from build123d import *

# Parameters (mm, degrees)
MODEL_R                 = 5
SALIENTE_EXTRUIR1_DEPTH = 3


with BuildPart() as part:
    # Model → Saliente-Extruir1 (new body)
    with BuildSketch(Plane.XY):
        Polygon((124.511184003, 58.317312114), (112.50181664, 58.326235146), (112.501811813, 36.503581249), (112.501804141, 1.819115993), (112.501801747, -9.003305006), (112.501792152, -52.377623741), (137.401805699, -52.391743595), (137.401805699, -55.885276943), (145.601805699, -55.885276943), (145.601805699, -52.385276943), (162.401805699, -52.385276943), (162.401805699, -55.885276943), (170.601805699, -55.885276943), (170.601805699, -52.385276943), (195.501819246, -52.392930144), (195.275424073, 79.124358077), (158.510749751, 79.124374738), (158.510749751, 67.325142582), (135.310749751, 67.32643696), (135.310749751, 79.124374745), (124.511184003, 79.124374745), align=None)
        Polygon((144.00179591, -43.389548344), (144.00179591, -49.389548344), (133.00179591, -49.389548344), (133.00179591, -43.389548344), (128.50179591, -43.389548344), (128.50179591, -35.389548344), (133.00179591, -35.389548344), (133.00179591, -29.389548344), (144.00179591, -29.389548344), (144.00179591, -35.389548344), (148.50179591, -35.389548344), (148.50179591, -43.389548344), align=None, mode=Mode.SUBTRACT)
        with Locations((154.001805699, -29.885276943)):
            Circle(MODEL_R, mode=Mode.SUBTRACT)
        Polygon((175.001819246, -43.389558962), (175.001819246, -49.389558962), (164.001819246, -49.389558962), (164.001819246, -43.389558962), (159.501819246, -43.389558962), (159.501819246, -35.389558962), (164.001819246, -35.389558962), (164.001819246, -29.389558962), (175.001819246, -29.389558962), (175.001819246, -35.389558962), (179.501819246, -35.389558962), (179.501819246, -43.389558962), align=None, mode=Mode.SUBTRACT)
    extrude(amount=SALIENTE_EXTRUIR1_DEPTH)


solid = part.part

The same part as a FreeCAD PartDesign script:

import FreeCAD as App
import Part
import Sketcher
from FreeCAD import Vector
Q = App.Units.Quantity

doc = App.newDocument("Part")
body = doc.addObject("PartDesign::Body", "Body")

# Sketch on XY plane
sketch1 = body.newObject("Sketcher::SketchObject", "Sketch")
sketch1.AttachmentSupport = (doc.getObject("XY_Plane"), [""])
sketch1.MapMode = "FlatFace"
sketch1.addGeometry([
    Part.LineSegment(Vector(124.5, 58.3, 0), Vector(112.5, 58.3, 0)),  # 0
    Part.LineSegment(Vector(112.5, 58.3, 0), Vector(112.5, 36.5, 0)),  # 1
    Part.LineSegment(Vector(112.5, 36.5, 0), Vector(112.5, 1.8, 0)),  # 2
    Part.LineSegment(Vector(112.5, 1.8, 0), Vector(112.5, -9, 0)),  # 3
    Part.LineSegment(Vector(112.5, -9, 0), Vector(112.5, -52.4, 0)),  # 4
    Part.LineSegment(Vector(112.5, -52.4, 0), Vector(137.4, -52.4, 0)),  # 5
    Part.LineSegment(Vector(137.4, -52.4, 0), Vector(137.4, -55.9, 0)),  # 6
    Part.LineSegment(Vector(137.4, -55.9, 0), Vector(145.6, -55.9, 0)),  # 7
    Part.LineSegment(Vector(145.6, -55.9, 0), Vector(145.6, -52.4, 0)),  # 8
    Part.LineSegment(Vector(145.6, -52.4, 0), Vector(162.4, -52.4, 0)),  # 9
    Part.LineSegment(Vector(162.4, -52.4, 0), Vector(162.4, -55.9, 0)),  # 10
    Part.LineSegment(Vector(162.4, -55.9, 0), Vector(170.6, -55.9, 0)),  # 11
    Part.LineSegment(Vector(170.6, -55.9, 0), Vector(170.6, -52.4, 0)),  # 12
    Part.LineSegment(Vector(170.6, -52.4, 0), Vector(195.5, -52.4, 0)),  # 13
    Part.LineSegment(Vector(195.5, -52.4, 0), Vector(195.3, 79.1, 0)),  # 14
    Part.LineSegment(Vector(195.3, 79.1, 0), Vector(158.5, 79.1, 0)),  # 15
    Part.LineSegment(Vector(158.5, 79.1, 0), Vector(158.5, 67.3, 0)),  # 16
    Part.LineSegment(Vector(158.5, 67.3, 0), Vector(135.3, 67.3, 0)),  # 17
    Part.LineSegment(Vector(135.3, 67.3, 0), Vector(135.3, 79.1, 0)),  # 18
    Part.LineSegment(Vector(135.3, 79.1, 0), Vector(124.5, 79.1, 0)),  # 19
    Part.LineSegment(Vector(124.5, 79.1, 0), Vector(124.5, 58.3, 0)),  # 20
    Part.LineSegment(Vector(148.5, -43.4, 0), Vector(144, -43.4, 0)),  # 21
    Part.LineSegment(Vector(144, -43.4, 0), Vector(144, -49.4, 0)),  # 22
    Part.LineSegment(Vector(144, -49.4, 0), Vector(133, -49.4, 0)),  # 23
    Part.LineSegment(Vector(133, -49.4, 0), Vector(133, -43.4, 0)),  # 24
    Part.LineSegment(Vector(133, -43.4, 0), Vector(128.5, -43.4, 0)),  # 25
    Part.LineSegment(Vector(128.5, -43.4, 0), Vector(128.5, -35.4, 0)),  # 26
    Part.LineSegment(Vector(128.5, -35.4, 0), Vector(133, -35.4, 0)),  # 27
    Part.LineSegment(Vector(133, -35.4, 0), Vector(133, -29.4, 0)),  # 28
    Part.LineSegment(Vector(133, -29.4, 0), Vector(144, -29.4, 0)),  # 29
    Part.LineSegment(Vector(144, -29.4, 0), Vector(144, -35.4, 0)),  # 30
    Part.LineSegment(Vector(144, -35.4, 0), Vector(148.5, -35.4, 0)),  # 31
    Part.LineSegment(Vector(148.5, -35.4, 0), Vector(148.5, -43.4, 0)),  # 32
    Part.LineSegment(Vector(179.5, -43.4, 0), Vector(175, -43.4, 0)),  # 33
    Part.LineSegment(Vector(175, -43.4, 0), Vector(175, -49.4, 0)),  # 34
    Part.LineSegment(Vector(175, -49.4, 0), Vector(164, -49.4, 0)),  # 35
    Part.LineSegment(Vector(164, -49.4, 0), Vector(164, -43.4, 0)),  # 36
    Part.LineSegment(Vector(164, -43.4, 0), Vector(159.5, -43.4, 0)),  # 37
    Part.LineSegment(Vector(159.5, -43.4, 0), Vector(159.5, -35.4, 0)),  # 38
    Part.LineSegment(Vector(159.5, -35.4, 0), Vector(164, -35.4, 0)),  # 39
    Part.LineSegment(Vector(164, -35.4, 0), Vector(164, -29.4, 0)),  # 40
    Part.LineSegment(Vector(164, -29.4, 0), Vector(175, -29.4, 0)),  # 41
    Part.LineSegment(Vector(175, -29.4, 0), Vector(175, -35.4, 0)),  # 42
    Part.LineSegment(Vector(175, -35.4, 0), Vector(179.5, -35.4, 0)),  # 43
    Part.LineSegment(Vector(179.5, -35.4, 0), Vector(179.5, -43.4, 0)),  # 44
    Part.Circle(Vector(154, -29.9, 0), Vector(0, 0, 1), 5),  # 45
], False)
sketch1.addConstraint([
    Sketcher.Constraint("Coincident", 0, 2, 1, 1),
    Sketcher.Constraint("Coincident", 1, 2, 2, 1),
    Sketcher.Constraint("Coincident", 2, 2, 3, 1),
    Sketcher.Constraint("Coincident", 3, 2, 4, 1),
    Sketcher.Constraint("Coincident", 4, 2, 5, 1),
    Sketcher.Constraint("Coincident", 5, 2, 6, 1),
    Sketcher.Constraint("Coincident", 6, 2, 7, 1),
    Sketcher.Constraint("Coincident", 7, 2, 8, 1),
    Sketcher.Constraint("Coincident", 8, 2, 9, 1),
    Sketcher.Constraint("Coincident", 9, 2, 10, 1),
    Sketcher.Constraint("Coincident", 10, 2, 11, 1),
    Sketcher.Constraint("Coincident", 11, 2, 12, 1),
    Sketcher.Constraint("Coincident", 12, 2, 13, 1),
    Sketcher.Constraint("Coincident", 13, 2, 14, 1),
    Sketcher.Constraint("Coincident", 14, 2, 15, 1),
    Sketcher.Constraint("Coincident", 15, 2, 16, 1),
    Sketcher.Constraint("Coincident", 16, 2, 17, 1),
    Sketcher.Constraint("Coincident", 17, 2, 18, 1),
    Sketcher.Constraint("Coincident", 18, 2, 19, 1),
    Sketcher.Constraint("Coincident", 19, 2, 20, 1),
    Sketcher.Constraint("Coincident", 20, 2, 0, 1),
    Sketcher.Constraint("Coincident", 21, 2, 22, 1),
    Sketcher.Constraint("Coincident", 22, 2, 23, 1),
    Sketcher.Constraint("Coincident", 23, 2, 24, 1),
    Sketcher.Constraint("Coincident", 24, 2, 25, 1),
    Sketcher.Constraint("Coincident", 25, 2, 26, 1),
    Sketcher.Constraint("Coincident", 26, 2, 27, 1),
    Sketcher.Constraint("Coincident", 27, 2, 28, 1),
    Sketcher.Constraint("Coincident", 28, 2, 29, 1),
    Sketcher.Constraint("Coincident", 29, 2, 30, 1),
    Sketcher.Constraint("Coincident", 30, 2, 31, 1),
    Sketcher.Constraint("Coincident", 31, 2, 32, 1),
    Sketcher.Constraint("Coincident", 32, 2, 21, 1),
    Sketcher.Constraint("Coincident", 33, 2, 34, 1),
    Sketcher.Constraint("Coincident", 34, 2, 35, 1),
    Sketcher.Constraint("Coincident", 35, 2, 36, 1),
    Sketcher.Constraint("Coincident", 36, 2, 37, 1),
    Sketcher.Constraint("Coincident", 37, 2, 38, 1),
    Sketcher.Constraint("Coincident", 38, 2, 39, 1),
    Sketcher.Constraint("Coincident", 39, 2, 40, 1),
    Sketcher.Constraint("Coincident", 40, 2, 41, 1),
    Sketcher.Constraint("Coincident", 41, 2, 42, 1),
    Sketcher.Constraint("Coincident", 42, 2, 43, 1),
    Sketcher.Constraint("Coincident", 43, 2, 44, 1),
    Sketcher.Constraint("Coincident", 44, 2, 33, 1),
    Sketcher.Constraint("Vertical", 6),
    Sketcher.Constraint("Horizontal", 7),
    Sketcher.Constraint("Vertical", 8),
    Sketcher.Constraint("Horizontal", 9),
    Sketcher.Constraint("Vertical", 10),
    Sketcher.Constraint("Horizontal", 11),
    Sketcher.Constraint("Vertical", 12),
    Sketcher.Constraint("Vertical", 16),
    Sketcher.Constraint("Vertical", 18),
    Sketcher.Constraint("Horizontal", 19),
    Sketcher.Constraint("Vertical", 20),
    Sketcher.Constraint("Horizontal", 21),
    Sketcher.Constraint("Vertical", 22),
    Sketcher.Constraint("Horizontal", 23),
    Sketcher.Constraint("Vertical", 24),
    Sketcher.Constraint("Horizontal", 25),
    Sketcher.Constraint("Vertical", 26),
    Sketcher.Constraint("Horizontal", 27),
    Sketcher.Constraint("Vertical", 28),
    Sketcher.Constraint("Horizontal", 29),
    Sketcher.Constraint("Vertical", 30),
    Sketcher.Constraint("Horizontal", 31),
    Sketcher.Constraint("Vertical", 32),
    Sketcher.Constraint("Horizontal", 33),
    Sketcher.Constraint("Vertical", 34),
    Sketcher.Constraint("Horizontal", 35),
    Sketcher.Constraint("Vertical", 36),
    Sketcher.Constraint("Horizontal", 37),
    Sketcher.Constraint("Vertical", 38),
    Sketcher.Constraint("Horizontal", 39),
    Sketcher.Constraint("Vertical", 40),
    Sketcher.Constraint("Horizontal", 41),
    Sketcher.Constraint("Vertical", 42),
    Sketcher.Constraint("Horizontal", 43),
    Sketcher.Constraint("Vertical", 44),
    Sketcher.Constraint("Parallel", 1, 2),
    Sketcher.Constraint("Parallel", 2, 3),
    Sketcher.Constraint("Parallel", 3, 4),
    Sketcher.Constraint("Perpendicular", 4, 15),
    Sketcher.Constraint("Horizontal", 7, 2, 10, 2),
    Sketcher.Constraint("Horizontal", 9, 2, 12, 2),
    Sketcher.Constraint("Horizontal", 15, 2, 18, 2),
    Sketcher.Constraint("Horizontal", 21, 2, 24, 2),
    Sketcher.Constraint("Horizontal", 27, 2, 30, 2),
    Sketcher.Constraint("Horizontal", 33, 2, 36, 2),
    Sketcher.Constraint("Horizontal", 39, 2, 42, 2),
    Sketcher.Constraint("Vertical", 24, 2, 27, 2),
    Sketcher.Constraint("Vertical", 22, 2, 29, 2),
    Sketcher.Constraint("Vertical", 36, 2, 39, 2),
    Sketcher.Constraint("Vertical", 34, 2, 41, 2),
    Sketcher.Constraint("Equal", 7, 11),
    Sketcher.Constraint("Equal", 21, 25),
    Sketcher.Constraint("Equal", 31, 33),
    Sketcher.Constraint("Equal", 29, 35),
    Sketcher.Constraint("Equal", 33, 37),
    Sketcher.Constraint("Equal", 24, 28),
    Sketcher.Constraint("Equal", 30, 34),
    Sketcher.Constraint("Equal", 32, 38),
    Sketcher.Constraint("Equal", 36, 40),
    Sketcher.Constraint("Diameter", 45, 10.0),
    Sketcher.Constraint("DistanceX", 23, 2, 23, 1, 11.0),
    Sketcher.Constraint("DistanceY", 22, 2, 22, 1, 6.0),
    Sketcher.Constraint("DistanceY", 26, 1, 26, 2, 8.0),
    Sketcher.Constraint("Angle", 1, Q("-90.000013 deg")),
    Sketcher.Constraint("DistanceX", 7, 1, 7, 2, 8.2),
    Sketcher.Constraint("DistanceX", 9, 1, 9, 2, 16.8),
    Sketcher.Constraint("DistanceX", 21, 2, 21, 1, 4.5),
    Sketcher.Constraint("DistanceY", 8, 1, 8, 2, 3.5),
    Sketcher.Constraint("DistanceY", 6, 2, 45, 3, 26.0),
    Sketcher.Constraint("Distance", 17, 23.2),
    Sketcher.Constraint("DistanceX", 2, 2, 45, 3, 41.500002),
    Sketcher.Constraint("DistanceX", 5, 2, 45, 3, 16.6),
    Sketcher.Constraint("DistanceX", 33, 2, 13, 2, 20.5),
    Sketcher.Constraint("DistanceX", -1, 1, 3, 2, 112.501802),
    Sketcher.Constraint("DistanceY", 0, 2, 17, 2, 9.000202),
    Sketcher.Constraint("Distance", 0, 12.009371),
    Sketcher.Constraint("Distance", 3, 10.822421),
    Sketcher.Constraint("Distance", 4, 43.374319),
    Sketcher.Constraint("DistanceX", 19, 2, 19, 1, 10.799566),
    Sketcher.Constraint("DistanceY", 6, 2, 6, 1, 3.493533),
    Sketcher.Constraint("DistanceY", 16, 2, 16, 1, 11.799232),
    Sketcher.Constraint("DistanceY", 18, 1, 18, 2, 11.797938),
    Sketcher.Constraint("DistanceY", 20, 2, 20, 1, 20.807063),
    Sketcher.Constraint("DistanceY", -1, 1, 1, 2, 36.503581),
    Sketcher.Constraint("DistanceX", -1, 1, 13, 2, 195.501819),
    Sketcher.Constraint("DistanceY", 13, 2, -1, 1, 52.39293),
    Sketcher.Constraint("DistanceY", -1, 1, 14, 2, 79.124358),
    Sketcher.Constraint("DistanceY", 21, 2, -1, 1, 43.389548),
    Sketcher.Constraint("DistanceY", 33, 2, -1, 1, 43.389559),
    Sketcher.Constraint("DistanceY", 45, 3, 1, 2, 66.388858),
    Sketcher.Constraint("DistanceY", 2, 2, 0, 2, 56.507119),
    Sketcher.Constraint("DistanceX", 2, 2, 14, 2, 82.77362),
    Sketcher.Constraint("DistanceX", 21, 2, 8, 2, 1.60001),
])
pad1 = body.newObject("PartDesign::Pad", "Pad")
pad1.Profile = sketch1
pad1.Length = 3

doc.recompute()
